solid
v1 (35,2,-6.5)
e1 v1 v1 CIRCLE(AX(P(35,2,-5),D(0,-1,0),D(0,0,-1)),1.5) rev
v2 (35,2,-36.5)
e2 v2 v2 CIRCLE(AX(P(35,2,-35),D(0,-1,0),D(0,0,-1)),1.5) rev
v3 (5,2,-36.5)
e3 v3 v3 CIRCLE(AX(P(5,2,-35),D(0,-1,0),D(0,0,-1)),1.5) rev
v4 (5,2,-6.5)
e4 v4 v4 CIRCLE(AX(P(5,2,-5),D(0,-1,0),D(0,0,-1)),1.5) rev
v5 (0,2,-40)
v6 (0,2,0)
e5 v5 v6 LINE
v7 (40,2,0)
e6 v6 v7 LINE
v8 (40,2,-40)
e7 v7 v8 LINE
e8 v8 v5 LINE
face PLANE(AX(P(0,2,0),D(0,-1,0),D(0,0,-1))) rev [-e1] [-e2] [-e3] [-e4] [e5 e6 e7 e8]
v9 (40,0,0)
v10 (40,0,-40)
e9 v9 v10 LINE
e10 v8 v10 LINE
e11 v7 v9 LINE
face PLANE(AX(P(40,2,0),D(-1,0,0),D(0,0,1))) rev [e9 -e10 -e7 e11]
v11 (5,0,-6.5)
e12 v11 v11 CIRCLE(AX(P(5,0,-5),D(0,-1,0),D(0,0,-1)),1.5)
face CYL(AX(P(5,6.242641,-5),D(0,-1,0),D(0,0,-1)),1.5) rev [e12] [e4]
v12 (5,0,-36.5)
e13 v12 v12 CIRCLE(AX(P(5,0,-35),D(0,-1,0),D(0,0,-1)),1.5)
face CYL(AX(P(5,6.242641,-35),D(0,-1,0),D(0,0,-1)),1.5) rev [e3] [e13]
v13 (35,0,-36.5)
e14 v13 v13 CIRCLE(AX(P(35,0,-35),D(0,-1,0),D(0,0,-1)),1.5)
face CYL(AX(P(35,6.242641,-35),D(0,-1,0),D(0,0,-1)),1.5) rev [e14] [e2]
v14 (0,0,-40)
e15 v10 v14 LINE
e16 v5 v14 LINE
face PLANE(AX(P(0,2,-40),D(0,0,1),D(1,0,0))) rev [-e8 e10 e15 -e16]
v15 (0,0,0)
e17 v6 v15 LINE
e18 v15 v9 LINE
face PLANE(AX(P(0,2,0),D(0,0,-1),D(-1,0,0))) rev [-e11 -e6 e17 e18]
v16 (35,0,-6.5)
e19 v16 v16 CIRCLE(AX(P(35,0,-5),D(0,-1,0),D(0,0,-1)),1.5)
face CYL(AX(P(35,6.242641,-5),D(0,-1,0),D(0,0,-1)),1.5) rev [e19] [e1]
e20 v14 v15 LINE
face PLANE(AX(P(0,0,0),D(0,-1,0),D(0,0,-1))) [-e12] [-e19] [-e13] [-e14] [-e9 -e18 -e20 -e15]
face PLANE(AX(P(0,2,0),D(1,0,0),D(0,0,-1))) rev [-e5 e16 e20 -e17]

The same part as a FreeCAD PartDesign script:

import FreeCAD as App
import Part
import Sketcher

V = App.Vector
Q = App.Units.Quantity

doc = App.newDocument("Part")
body = doc.addObject("PartDesign::Body", "Body")

# Sketch on XZ plane
sketch1 = doc.addObject("Sketcher::SketchObject", "Sketch")
body.addObject(sketch1)
sketch1.AttachmentSupport = (doc.XZ_Plane, [""])
sketch1.MapMode = "FlatFace"
sketch1.addGeometry([
    Part.LineSegment(V(0, -40, 0), V(0, 0, 0)),
    Part.LineSegment(V(0, 0, 0), V(40, 0, 0)),
    Part.LineSegment(V(40, 0, 0), V(40, -40, 0)),
    Part.LineSegment(V(40, -40, 0), V(0, -40, 0)),
], False)
sketch1.addConstraint([
    Sketcher.Constraint("Coincident", 0, 2, 1, 1),
    Sketcher.Constraint("Coincident", 1, 2, 2, 1),
    Sketcher.Constraint("Coincident", 2, 2, 3, 1),
    Sketcher.Constraint("Coincident", 3, 2, 0, 1),
    Sketcher.Constraint("Vertical", 0),
    Sketcher.Constraint("Horizontal", 1),
    Sketcher.Constraint("Vertical", 2),
    Sketcher.Constraint("Horizontal", 3),
    Sketcher.Constraint("Coincident", 0, 2, -1, 1),
    Sketcher.Constraint("Equal", 3, 0),
    Sketcher.Constraint("DistanceX", 1, 1, 1, 2, Q("40 mm")),
])
pad1 = doc.addObject("PartDesign::Pad", "Pad")
body.addObject(pad1)
pad1.Profile = sketch1
pad1.Length = 2
pad1.Reversed = True

# Sketch on XZ plane
sketch2 = doc.addObject("Sketcher::SketchObject", "Sketch001")
body.addObject(sketch2)
sketch2.AttachmentSupport = (doc.XZ_Plane, [""])
sketch2.MapMode = "FlatFace"
sketch2.addGeometry([
    Part.Circle(V(35, -5, 0), V(0, 0, 1), 1.5),
    Part.Circle(V(35, -35, 0), V(0, 0, 1), 1.5),
    Part.Circle(V(5, -5, 0), V(0, 0, 1), 1.5),
    Part.Circle(V(5, -35, 0), V(0, 0, 1), 1.5),
], False)
sketch2.addConstraint([
    Sketcher.Constraint("Equal", 0, 1),
    Sketcher.Constraint("Equal", 1, 2),
    Sketcher.Constraint("Equal", 2, 3),
    Sketcher.Constraint("Horizontal", 0, 3, 2, 3),
    Sketcher.Constraint("Horizontal", 1, 3, 3, 3),
    Sketcher.Constraint("Vertical", 0, 3, 1, 3),
    Sketcher.Constraint("Vertical", 2, 3, 3, 3),
    Sketcher.Constraint("Diameter", 0, Q("3 mm")),
    Sketcher.Constraint("DistanceX", -1, 1, 0, 3, Q("35 mm")),
    Sketcher.Constraint("DistanceY", 0, 3, -1, 1, Q("5 mm")),
    Sketcher.Constraint("DistanceY", 1, 3, -1, 1, Q("35 mm")),
    Sketcher.Constraint("DistanceX", -1, 1, 2, 3, Q("5 mm")),
])
pocket1 = doc.addObject("PartDesign::Pocket", "Pocket")
body.addObject(pocket1)
pocket1.Profile = sketch2
pocket1.Length = 2

doc.recompute()
